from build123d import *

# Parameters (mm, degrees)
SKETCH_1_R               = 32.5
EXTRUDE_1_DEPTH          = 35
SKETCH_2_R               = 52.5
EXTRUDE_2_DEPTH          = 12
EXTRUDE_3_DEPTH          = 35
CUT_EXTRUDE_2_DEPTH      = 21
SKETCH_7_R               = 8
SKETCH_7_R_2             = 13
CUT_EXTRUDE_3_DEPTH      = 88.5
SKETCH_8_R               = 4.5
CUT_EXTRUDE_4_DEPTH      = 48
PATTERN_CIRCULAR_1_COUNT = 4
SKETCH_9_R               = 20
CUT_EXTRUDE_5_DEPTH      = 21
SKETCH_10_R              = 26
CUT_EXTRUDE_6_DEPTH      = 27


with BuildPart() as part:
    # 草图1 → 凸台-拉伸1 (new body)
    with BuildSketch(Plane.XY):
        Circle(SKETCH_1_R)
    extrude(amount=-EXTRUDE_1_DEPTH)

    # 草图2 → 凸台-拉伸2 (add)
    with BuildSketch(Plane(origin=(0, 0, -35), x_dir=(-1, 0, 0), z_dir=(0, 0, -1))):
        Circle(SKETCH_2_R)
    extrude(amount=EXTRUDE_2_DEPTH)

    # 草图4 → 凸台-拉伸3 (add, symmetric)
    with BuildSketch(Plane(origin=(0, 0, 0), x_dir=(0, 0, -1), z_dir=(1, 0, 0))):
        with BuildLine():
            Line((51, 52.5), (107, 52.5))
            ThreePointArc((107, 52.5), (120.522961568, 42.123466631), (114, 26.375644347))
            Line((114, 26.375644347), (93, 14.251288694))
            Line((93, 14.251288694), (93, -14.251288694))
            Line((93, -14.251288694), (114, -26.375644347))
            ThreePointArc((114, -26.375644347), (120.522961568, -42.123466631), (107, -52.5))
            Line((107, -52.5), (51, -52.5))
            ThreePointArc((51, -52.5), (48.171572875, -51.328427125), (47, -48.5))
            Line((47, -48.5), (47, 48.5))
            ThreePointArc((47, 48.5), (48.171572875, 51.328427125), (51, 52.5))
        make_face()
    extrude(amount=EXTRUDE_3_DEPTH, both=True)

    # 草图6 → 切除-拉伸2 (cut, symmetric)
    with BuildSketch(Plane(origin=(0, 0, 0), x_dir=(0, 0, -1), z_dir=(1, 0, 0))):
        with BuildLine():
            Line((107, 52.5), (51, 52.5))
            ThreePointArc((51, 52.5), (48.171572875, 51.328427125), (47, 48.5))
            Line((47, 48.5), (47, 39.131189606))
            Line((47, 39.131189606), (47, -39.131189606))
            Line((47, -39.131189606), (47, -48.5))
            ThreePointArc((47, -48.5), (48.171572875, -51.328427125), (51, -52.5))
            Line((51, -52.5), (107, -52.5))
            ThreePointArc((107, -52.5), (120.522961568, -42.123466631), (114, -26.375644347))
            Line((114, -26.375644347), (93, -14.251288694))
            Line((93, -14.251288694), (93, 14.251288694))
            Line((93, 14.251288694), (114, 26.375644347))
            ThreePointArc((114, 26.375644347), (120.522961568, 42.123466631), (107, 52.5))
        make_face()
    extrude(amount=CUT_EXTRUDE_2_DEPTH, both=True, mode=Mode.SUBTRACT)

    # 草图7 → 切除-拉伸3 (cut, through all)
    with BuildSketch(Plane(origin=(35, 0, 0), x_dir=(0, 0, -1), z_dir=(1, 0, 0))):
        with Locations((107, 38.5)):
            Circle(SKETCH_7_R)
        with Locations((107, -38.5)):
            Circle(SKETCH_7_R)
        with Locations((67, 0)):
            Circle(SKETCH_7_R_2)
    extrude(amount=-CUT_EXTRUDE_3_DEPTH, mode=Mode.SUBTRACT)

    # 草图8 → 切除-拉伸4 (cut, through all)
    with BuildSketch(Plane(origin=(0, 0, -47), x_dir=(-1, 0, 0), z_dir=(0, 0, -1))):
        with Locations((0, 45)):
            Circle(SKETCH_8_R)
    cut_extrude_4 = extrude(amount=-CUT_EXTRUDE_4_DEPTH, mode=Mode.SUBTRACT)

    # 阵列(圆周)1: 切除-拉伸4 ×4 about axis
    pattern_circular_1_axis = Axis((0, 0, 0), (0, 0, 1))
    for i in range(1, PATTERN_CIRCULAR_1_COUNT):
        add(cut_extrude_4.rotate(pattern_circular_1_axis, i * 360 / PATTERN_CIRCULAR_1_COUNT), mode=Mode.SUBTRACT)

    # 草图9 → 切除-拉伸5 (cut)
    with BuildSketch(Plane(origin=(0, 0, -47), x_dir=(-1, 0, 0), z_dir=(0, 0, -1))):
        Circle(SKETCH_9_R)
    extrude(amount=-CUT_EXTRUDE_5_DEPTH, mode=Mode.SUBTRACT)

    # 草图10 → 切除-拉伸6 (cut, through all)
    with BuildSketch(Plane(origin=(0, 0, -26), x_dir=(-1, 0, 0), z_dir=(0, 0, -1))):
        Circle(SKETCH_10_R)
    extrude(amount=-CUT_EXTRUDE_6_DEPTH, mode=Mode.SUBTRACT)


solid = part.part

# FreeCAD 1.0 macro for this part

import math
import FreeCAD as App
import Part
import Sketcher
Q = App.Units.Quantity

doc = App.newDocument("Part")
body = doc.addObject("PartDesign::Body", "Body")

sketch1 = body.newObject("Sketcher::SketchObject", "Sketch")
sketch1.AttachmentSupport = (doc.getObject("XY_Plane"), [""])
sketch1.MapMode = "FlatFace"
sketch1.addGeometry(Part.Circle(App.Vector(0, 0, 0), App.Vector(0, 0, 1), 32.5), False)
sketch1.addConstraint([
    Sketcher.Constraint("Coincident", 0, 3, -1, 1),
    Sketcher.Constraint("Diameter", 0, 65.0),
])
pad1 = body.newObject("PartDesign::Pad", "Pad")
pad1.Profile = sketch1
pad1.Length = 35
pad1.Reversed = True

sketch2 = body.newObject("Sketcher::SketchObject", "Sketch001")
sketch2.AttachmentSupport = (doc.getObject("XY_Plane"), [""])
sketch2.MapMode = "FlatFace"
sketch2.AttachmentOffset = App.Placement(App.Vector(0, 0, -35), App.Rotation())
sketch2.addGeometry(Part.Circle(App.Vector(0, 0, 0), App.Vector(0, 0, 1), 52.5), False)
sketch2.addConstraint([
    Sketcher.Constraint("Coincident", 0, 3, -1, 1),
    Sketcher.Constraint("Diameter", 0, 105.0),
])
pad2 = body.newObject("PartDesign::Pad", "Pad001")
pad2.Profile = sketch2
pad2.Length = 12
pad2.Reversed = True

sketch3 = body.newObject("Sketcher::SketchObject", "Sketch002")
sketch3.AttachmentSupport = (doc.getObject("YZ_Plane"), [""])
sketch3.MapMode = "FlatFace"
sketch3.addGeometry([
    Part.LineSegment(App.Vector(52.5, -107, 0), App.Vector(52.5, -51, 0)),
    Part.ArcOfCircle(Part.Circle(App.Vector(48.5, -51, 0), App.Vector(0, 0, 1), 4), math.radians(0), math.radians(90)),
    Part.LineSegment(App.Vector(48.5, -47, 0), App.Vector(-48.5, -47, 0)),
    Part.ArcOfCircle(Part.Circle(App.Vector(-48.5, -51, 0), App.Vector(0, 0, 1), 4), math.radians(90), math.radians(180)),
    Part.LineSegment(App.Vector(-52.5, -51, 0), App.Vector(-52.5, -107, 0)),
    Part.ArcOfCircle(Part.Circle(App.Vector(-38.5, -107, 0), App.Vector(0, 0, 1), 14), math.radians(180), math.radians(330)),
    Part.LineSegment(App.Vector(-26.375644, -114, 0), App.Vector(-14.251289, -93, 0)),
    Part.LineSegment(App.Vector(-14.251289, -93, 0), App.Vector(14.251289, -93, 0)),
    Part.LineSegment(App.Vector(14.251289, -93, 0), App.Vector(26.375644, -114, 0)),
    Part.ArcOfCircle(Part.Circle(App.Vector(38.5, -107, 0), App.Vector(0, 0, 1), 14), math.radians(-150), math.radians(0)),
], False)
sketch3.addConstraint([
    Sketcher.Constraint("Tangent", 0, 2, 1, 1),
    Sketcher.Constraint("Tangent", 1, 2, 2, 1),
    Sketcher.Constraint("Tangent", 2, 2, 3, 1),
    Sketcher.Constraint("Tangent", 3, 2, 4, 1),
    Sketcher.Constraint("Tangent", 4, 2, 5, 1),
    Sketcher.Constraint("Tangent", 5, 2, 6, 1),
    Sketcher.Constraint("Coincident", 6, 2, 7, 1),
    Sketcher.Constraint("Coincident", 7, 2, 8, 1),
    Sketcher.Constraint("Tangent", 8, 2, 9, 1),
    Sketcher.Constraint("Tangent", 9, 2, 0, 1),
    Sketcher.Constraint("Vertical", 0),
    Sketcher.Constraint("Horizontal", 2),
    Sketcher.Constraint("Vertical", 4),
    Sketcher.Constraint("Horizontal", 7),
    Sketcher.Constraint("Equal", 1, 3),
    Sketcher.Constraint("Equal", 5, 9),
    Sketcher.Constraint("Symmetric", 5, 3, 9, 3, -2),
    Sketcher.Constraint("Horizontal", 5, 2, 8, 2),
    Sketcher.Constraint("Radius", 1, 4.0),
    Sketcher.Constraint("Radius", 5, 14.0),
    Sketcher.Constraint("DistanceX", 2, 2, 2, 1, 97.0),
    Sketcher.Constraint("DistanceY", 0, 1, 0, 2, 56.0),
    Sketcher.Constraint("Angle", 6, Q("60 deg")),
    Sketcher.Constraint("DistanceY", 1, 3, -1, 1, 51.0),
    Sketcher.Constraint("DistanceY", 6, 2, -1, 1, 93.0),
])
pad3 = body.newObject("PartDesign::Pad", "Pad002")
pad3.Profile = sketch3
pad3.Length = 70
pad3.Midplane = True

sketch4 = body.newObject("Sketcher::SketchObject", "Sketch003")
sketch4.AttachmentSupport = (doc.getObject("YZ_Plane"), [""])
sketch4.MapMode = "FlatFace"
sketch4.addGeometry([
    Part.LineSegment(App.Vector(52.5, -107, 0), App.Vector(52.5, -51, 0)),
    Part.ArcOfCircle(Part.Circle(App.Vector(48.5, -51, 0), App.Vector(0, 0, 1), 4), math.radians(0), math.radians(90)),
    Part.LineSegment(App.Vector(48.5, -47, 0), App.Vector(-48.5, -47, 0)),
    Part.ArcOfCircle(Part.Circle(App.Vector(-48.5, -51, 0), App.Vector(0, 0, 1), 4), math.radians(90), math.radians(180)),
    Part.LineSegment(App.Vector(-52.5, -51, 0), App.Vector(-52.5, -107, 0)),
    Part.ArcOfCircle(Part.Circle(App.Vector(-38.5, -107, 0), App.Vector(0, 0, 1), 14), math.radians(180), math.radians(330)),
    Part.LineSegment(App.Vector(-26.375644, -114, 0), App.Vector(-14.251289, -93, 0)),
    Part.LineSegment(App.Vector(-14.251289, -93, 0), App.Vector(14.251289, -93, 0)),
    Part.LineSegment(App.Vector(14.251289, -93, 0), App.Vector(26.375644, -114, 0)),
    Part.ArcOfCircle(Part.Circle(App.Vector(38.5, -107, 0), App.Vector(0, 0, 1), 14), math.radians(-150), math.radians(0)),
], False)
sketch4.addConstraint([
    Sketcher.Constraint("Tangent", 0, 2, 1, 1),
    Sketcher.Constraint("Tangent", 1, 2, 2, 1),
    Sketcher.Constraint("Tangent", 2, 2, 3, 1),
    Sketcher.Constraint("Tangent", 3, 2, 4, 1),
    Sketcher.Constraint("Tangent", 4, 2, 5, 1),
    Sketcher.Constraint("Tangent", 5, 2, 6, 1),
    Sketcher.Constraint("Coincident", 6, 2, 7, 1),
    Sketcher.Constraint("Coincident", 7, 2, 8, 1),
    Sketcher.Constraint("Tangent", 8, 2, 9, 1),
    Sketcher.Constraint("Tangent", 9, 2, 0, 1),
    Sketcher.Constraint("Vertical", 0),
    Sketcher.Constraint("Horizontal", 2),
    Sketcher.Constraint("Vertical", 4),
    Sketcher.Constraint("Horizontal", 7),
    Sketcher.Constraint("Equal", 1, 3),
    Sketcher.Constraint("Equal", 5, 9),
    Sketcher.Constraint("Symmetric", 5, 3, 9, 3, -2),
    Sketcher.Constraint("Horizontal", 5, 2, 8, 2),
    Sketcher.Constraint("Radius", 1, 4.0),
    Sketcher.Constraint("Radius", 5, 14.0),
    Sketcher.Constraint("DistanceX", 2, 2, 2, 1, 97.0),
    Sketcher.Constraint("DistanceY", 0, 1, 0, 2, 56.0),
    Sketcher.Constraint("Angle", 6, Q("60 deg")),
    Sketcher.Constraint("DistanceY", 1, 3, -1, 1, 51.0),
    Sketcher.Constraint("DistanceY", 6, 2, -1, 1, 93.0),
])
pocket1 = body.newObject("PartDesign::Pocket", "Pocket")
pocket1.Profile = sketch4
pocket1.Length = 42
pocket1.Midplane = True

sketch5 = body.newObject("Sketcher::SketchObject", "Sketch004")
sketch5.AttachmentSupport = (doc.getObject("YZ_Plane"), [""])
sketch5.MapMode = "FlatFace"
sketch5.AttachmentOffset = App.Placement(App.Vector(0, 0, 35), App.Rotation())
sketch5.addGeometry([
    Part.Circle(App.Vector(38.5, -107, 0), App.Vector(0, 0, 1), 8),
    Part.Circle(App.Vector(-38.5, -107, 0), App.Vector(0, 0, 1), 8),
    Part.Circle(App.Vector(0, -67, 0), App.Vector(0, 0, 1), 13),
], False)
sketch5.addConstraint([
    Sketcher.Constraint("Equal", 0, 1),
    Sketcher.Constraint("Symmetric", 0, 3, 1, 3, -2),
    Sketcher.Constraint("PointOnObject", 2, 3, -2),
    Sketcher.Constraint("Diameter", 0, 16.0),
    Sketcher.Constraint("Diameter", 2, 26.0),
    Sketcher.Constraint("DistanceY", 0, 3, -1, 1, 107.0),
    Sketcher.Constraint("DistanceY", 2, 3, -1, 1, 67.0),
    Sketcher.Constraint("DistanceX", 1, 3, 0, 3, 77.0),
])
pocket2 = body.newObject("PartDesign::Pocket", "Pocket001")
pocket2.Profile = sketch5
pocket2.Type = "ThroughAll"

sketch6 = body.newObject("Sketcher::SketchObject", "Sketch005")
sketch6.AttachmentSupport = (doc.getObject("XY_Plane"), [""])
sketch6.MapMode = "FlatFace"
sketch6.AttachmentOffset = App.Placement(App.Vector(0, 0, -47), App.Rotation())
sketch6.addGeometry(Part.Circle(App.Vector(0, 45, 0), App.Vector(0, 0, 1), 4.5), False)
sketch6.addConstraint([
    Sketcher.Constraint("PointOnObject", 0, 3, -2),
    Sketcher.Constraint("Diameter", 0, 9.0),
    Sketcher.Constraint("DistanceY", -1, 1, 0, 3, 45.0),
])
pocket3 = body.newObject("PartDesign::Pocket", "Pocket002")
pocket3.Profile = sketch6
pocket3.Type = "ThroughAll"
pocket3.Reversed = True
doc.recompute()

polarpattern = body.newObject("PartDesign::PolarPattern", "PolarPattern")
polarpattern.Originals = [pocket3]
polarpattern.Axis = (doc.getObject("Z_Axis"), [""])
polarpattern.Angle = 360
polarpattern.Occurrences = 4
body.Tip = polarpattern

sketch7 = body.newObject("Sketcher::SketchObject", "Sketch006")
sketch7.AttachmentSupport = (doc.getObject("XY_Plane"), [""])
sketch7.MapMode = "FlatFace"
sketch7.AttachmentOffset = App.Placement(App.Vector(0, 0, -47), App.Rotation())
sketch7.addGeometry(Part.Circle(App.Vector(0, 0, 0), App.Vector(0, 0, 1), 20), False)
sketch7.addConstraint([
    Sketcher.Constraint("Coincident", 0, 3, -1, 1),
    Sketcher.Constraint("Diameter", 0, 40.0),
])
pocket4 = body.newObject("PartDesign::Pocket", "Pocket003")
pocket4.Profile = sketch7
pocket4.Length = 21
pocket4.Reversed = True

sketch8 = body.newObject("Sketcher::SketchObject", "Sketch007")
sketch8.AttachmentSupport = (doc.getObject("XY_Plane"), [""])
sketch8.MapMode = "FlatFace"
sketch8.AttachmentOffset = App.Placement(App.Vector(0, 0, -26), App.Rotation())
sketch8.addGeometry(Part.Circle(App.Vector(0, 0, 0), App.Vector(0, 0, 1), 26), False)
sketch8.addConstraint([
    Sketcher.Constraint("Coincident", 0, 3, -1, 1),
    Sketcher.Constraint("Diameter", 0, 52.0),
])
pocket5 = body.newObject("PartDesign::Pocket", "Pocket004")
pocket5.Profile = sketch8
pocket5.Type = "ThroughAll"
pocket5.Reversed = True

doc.recompute()
